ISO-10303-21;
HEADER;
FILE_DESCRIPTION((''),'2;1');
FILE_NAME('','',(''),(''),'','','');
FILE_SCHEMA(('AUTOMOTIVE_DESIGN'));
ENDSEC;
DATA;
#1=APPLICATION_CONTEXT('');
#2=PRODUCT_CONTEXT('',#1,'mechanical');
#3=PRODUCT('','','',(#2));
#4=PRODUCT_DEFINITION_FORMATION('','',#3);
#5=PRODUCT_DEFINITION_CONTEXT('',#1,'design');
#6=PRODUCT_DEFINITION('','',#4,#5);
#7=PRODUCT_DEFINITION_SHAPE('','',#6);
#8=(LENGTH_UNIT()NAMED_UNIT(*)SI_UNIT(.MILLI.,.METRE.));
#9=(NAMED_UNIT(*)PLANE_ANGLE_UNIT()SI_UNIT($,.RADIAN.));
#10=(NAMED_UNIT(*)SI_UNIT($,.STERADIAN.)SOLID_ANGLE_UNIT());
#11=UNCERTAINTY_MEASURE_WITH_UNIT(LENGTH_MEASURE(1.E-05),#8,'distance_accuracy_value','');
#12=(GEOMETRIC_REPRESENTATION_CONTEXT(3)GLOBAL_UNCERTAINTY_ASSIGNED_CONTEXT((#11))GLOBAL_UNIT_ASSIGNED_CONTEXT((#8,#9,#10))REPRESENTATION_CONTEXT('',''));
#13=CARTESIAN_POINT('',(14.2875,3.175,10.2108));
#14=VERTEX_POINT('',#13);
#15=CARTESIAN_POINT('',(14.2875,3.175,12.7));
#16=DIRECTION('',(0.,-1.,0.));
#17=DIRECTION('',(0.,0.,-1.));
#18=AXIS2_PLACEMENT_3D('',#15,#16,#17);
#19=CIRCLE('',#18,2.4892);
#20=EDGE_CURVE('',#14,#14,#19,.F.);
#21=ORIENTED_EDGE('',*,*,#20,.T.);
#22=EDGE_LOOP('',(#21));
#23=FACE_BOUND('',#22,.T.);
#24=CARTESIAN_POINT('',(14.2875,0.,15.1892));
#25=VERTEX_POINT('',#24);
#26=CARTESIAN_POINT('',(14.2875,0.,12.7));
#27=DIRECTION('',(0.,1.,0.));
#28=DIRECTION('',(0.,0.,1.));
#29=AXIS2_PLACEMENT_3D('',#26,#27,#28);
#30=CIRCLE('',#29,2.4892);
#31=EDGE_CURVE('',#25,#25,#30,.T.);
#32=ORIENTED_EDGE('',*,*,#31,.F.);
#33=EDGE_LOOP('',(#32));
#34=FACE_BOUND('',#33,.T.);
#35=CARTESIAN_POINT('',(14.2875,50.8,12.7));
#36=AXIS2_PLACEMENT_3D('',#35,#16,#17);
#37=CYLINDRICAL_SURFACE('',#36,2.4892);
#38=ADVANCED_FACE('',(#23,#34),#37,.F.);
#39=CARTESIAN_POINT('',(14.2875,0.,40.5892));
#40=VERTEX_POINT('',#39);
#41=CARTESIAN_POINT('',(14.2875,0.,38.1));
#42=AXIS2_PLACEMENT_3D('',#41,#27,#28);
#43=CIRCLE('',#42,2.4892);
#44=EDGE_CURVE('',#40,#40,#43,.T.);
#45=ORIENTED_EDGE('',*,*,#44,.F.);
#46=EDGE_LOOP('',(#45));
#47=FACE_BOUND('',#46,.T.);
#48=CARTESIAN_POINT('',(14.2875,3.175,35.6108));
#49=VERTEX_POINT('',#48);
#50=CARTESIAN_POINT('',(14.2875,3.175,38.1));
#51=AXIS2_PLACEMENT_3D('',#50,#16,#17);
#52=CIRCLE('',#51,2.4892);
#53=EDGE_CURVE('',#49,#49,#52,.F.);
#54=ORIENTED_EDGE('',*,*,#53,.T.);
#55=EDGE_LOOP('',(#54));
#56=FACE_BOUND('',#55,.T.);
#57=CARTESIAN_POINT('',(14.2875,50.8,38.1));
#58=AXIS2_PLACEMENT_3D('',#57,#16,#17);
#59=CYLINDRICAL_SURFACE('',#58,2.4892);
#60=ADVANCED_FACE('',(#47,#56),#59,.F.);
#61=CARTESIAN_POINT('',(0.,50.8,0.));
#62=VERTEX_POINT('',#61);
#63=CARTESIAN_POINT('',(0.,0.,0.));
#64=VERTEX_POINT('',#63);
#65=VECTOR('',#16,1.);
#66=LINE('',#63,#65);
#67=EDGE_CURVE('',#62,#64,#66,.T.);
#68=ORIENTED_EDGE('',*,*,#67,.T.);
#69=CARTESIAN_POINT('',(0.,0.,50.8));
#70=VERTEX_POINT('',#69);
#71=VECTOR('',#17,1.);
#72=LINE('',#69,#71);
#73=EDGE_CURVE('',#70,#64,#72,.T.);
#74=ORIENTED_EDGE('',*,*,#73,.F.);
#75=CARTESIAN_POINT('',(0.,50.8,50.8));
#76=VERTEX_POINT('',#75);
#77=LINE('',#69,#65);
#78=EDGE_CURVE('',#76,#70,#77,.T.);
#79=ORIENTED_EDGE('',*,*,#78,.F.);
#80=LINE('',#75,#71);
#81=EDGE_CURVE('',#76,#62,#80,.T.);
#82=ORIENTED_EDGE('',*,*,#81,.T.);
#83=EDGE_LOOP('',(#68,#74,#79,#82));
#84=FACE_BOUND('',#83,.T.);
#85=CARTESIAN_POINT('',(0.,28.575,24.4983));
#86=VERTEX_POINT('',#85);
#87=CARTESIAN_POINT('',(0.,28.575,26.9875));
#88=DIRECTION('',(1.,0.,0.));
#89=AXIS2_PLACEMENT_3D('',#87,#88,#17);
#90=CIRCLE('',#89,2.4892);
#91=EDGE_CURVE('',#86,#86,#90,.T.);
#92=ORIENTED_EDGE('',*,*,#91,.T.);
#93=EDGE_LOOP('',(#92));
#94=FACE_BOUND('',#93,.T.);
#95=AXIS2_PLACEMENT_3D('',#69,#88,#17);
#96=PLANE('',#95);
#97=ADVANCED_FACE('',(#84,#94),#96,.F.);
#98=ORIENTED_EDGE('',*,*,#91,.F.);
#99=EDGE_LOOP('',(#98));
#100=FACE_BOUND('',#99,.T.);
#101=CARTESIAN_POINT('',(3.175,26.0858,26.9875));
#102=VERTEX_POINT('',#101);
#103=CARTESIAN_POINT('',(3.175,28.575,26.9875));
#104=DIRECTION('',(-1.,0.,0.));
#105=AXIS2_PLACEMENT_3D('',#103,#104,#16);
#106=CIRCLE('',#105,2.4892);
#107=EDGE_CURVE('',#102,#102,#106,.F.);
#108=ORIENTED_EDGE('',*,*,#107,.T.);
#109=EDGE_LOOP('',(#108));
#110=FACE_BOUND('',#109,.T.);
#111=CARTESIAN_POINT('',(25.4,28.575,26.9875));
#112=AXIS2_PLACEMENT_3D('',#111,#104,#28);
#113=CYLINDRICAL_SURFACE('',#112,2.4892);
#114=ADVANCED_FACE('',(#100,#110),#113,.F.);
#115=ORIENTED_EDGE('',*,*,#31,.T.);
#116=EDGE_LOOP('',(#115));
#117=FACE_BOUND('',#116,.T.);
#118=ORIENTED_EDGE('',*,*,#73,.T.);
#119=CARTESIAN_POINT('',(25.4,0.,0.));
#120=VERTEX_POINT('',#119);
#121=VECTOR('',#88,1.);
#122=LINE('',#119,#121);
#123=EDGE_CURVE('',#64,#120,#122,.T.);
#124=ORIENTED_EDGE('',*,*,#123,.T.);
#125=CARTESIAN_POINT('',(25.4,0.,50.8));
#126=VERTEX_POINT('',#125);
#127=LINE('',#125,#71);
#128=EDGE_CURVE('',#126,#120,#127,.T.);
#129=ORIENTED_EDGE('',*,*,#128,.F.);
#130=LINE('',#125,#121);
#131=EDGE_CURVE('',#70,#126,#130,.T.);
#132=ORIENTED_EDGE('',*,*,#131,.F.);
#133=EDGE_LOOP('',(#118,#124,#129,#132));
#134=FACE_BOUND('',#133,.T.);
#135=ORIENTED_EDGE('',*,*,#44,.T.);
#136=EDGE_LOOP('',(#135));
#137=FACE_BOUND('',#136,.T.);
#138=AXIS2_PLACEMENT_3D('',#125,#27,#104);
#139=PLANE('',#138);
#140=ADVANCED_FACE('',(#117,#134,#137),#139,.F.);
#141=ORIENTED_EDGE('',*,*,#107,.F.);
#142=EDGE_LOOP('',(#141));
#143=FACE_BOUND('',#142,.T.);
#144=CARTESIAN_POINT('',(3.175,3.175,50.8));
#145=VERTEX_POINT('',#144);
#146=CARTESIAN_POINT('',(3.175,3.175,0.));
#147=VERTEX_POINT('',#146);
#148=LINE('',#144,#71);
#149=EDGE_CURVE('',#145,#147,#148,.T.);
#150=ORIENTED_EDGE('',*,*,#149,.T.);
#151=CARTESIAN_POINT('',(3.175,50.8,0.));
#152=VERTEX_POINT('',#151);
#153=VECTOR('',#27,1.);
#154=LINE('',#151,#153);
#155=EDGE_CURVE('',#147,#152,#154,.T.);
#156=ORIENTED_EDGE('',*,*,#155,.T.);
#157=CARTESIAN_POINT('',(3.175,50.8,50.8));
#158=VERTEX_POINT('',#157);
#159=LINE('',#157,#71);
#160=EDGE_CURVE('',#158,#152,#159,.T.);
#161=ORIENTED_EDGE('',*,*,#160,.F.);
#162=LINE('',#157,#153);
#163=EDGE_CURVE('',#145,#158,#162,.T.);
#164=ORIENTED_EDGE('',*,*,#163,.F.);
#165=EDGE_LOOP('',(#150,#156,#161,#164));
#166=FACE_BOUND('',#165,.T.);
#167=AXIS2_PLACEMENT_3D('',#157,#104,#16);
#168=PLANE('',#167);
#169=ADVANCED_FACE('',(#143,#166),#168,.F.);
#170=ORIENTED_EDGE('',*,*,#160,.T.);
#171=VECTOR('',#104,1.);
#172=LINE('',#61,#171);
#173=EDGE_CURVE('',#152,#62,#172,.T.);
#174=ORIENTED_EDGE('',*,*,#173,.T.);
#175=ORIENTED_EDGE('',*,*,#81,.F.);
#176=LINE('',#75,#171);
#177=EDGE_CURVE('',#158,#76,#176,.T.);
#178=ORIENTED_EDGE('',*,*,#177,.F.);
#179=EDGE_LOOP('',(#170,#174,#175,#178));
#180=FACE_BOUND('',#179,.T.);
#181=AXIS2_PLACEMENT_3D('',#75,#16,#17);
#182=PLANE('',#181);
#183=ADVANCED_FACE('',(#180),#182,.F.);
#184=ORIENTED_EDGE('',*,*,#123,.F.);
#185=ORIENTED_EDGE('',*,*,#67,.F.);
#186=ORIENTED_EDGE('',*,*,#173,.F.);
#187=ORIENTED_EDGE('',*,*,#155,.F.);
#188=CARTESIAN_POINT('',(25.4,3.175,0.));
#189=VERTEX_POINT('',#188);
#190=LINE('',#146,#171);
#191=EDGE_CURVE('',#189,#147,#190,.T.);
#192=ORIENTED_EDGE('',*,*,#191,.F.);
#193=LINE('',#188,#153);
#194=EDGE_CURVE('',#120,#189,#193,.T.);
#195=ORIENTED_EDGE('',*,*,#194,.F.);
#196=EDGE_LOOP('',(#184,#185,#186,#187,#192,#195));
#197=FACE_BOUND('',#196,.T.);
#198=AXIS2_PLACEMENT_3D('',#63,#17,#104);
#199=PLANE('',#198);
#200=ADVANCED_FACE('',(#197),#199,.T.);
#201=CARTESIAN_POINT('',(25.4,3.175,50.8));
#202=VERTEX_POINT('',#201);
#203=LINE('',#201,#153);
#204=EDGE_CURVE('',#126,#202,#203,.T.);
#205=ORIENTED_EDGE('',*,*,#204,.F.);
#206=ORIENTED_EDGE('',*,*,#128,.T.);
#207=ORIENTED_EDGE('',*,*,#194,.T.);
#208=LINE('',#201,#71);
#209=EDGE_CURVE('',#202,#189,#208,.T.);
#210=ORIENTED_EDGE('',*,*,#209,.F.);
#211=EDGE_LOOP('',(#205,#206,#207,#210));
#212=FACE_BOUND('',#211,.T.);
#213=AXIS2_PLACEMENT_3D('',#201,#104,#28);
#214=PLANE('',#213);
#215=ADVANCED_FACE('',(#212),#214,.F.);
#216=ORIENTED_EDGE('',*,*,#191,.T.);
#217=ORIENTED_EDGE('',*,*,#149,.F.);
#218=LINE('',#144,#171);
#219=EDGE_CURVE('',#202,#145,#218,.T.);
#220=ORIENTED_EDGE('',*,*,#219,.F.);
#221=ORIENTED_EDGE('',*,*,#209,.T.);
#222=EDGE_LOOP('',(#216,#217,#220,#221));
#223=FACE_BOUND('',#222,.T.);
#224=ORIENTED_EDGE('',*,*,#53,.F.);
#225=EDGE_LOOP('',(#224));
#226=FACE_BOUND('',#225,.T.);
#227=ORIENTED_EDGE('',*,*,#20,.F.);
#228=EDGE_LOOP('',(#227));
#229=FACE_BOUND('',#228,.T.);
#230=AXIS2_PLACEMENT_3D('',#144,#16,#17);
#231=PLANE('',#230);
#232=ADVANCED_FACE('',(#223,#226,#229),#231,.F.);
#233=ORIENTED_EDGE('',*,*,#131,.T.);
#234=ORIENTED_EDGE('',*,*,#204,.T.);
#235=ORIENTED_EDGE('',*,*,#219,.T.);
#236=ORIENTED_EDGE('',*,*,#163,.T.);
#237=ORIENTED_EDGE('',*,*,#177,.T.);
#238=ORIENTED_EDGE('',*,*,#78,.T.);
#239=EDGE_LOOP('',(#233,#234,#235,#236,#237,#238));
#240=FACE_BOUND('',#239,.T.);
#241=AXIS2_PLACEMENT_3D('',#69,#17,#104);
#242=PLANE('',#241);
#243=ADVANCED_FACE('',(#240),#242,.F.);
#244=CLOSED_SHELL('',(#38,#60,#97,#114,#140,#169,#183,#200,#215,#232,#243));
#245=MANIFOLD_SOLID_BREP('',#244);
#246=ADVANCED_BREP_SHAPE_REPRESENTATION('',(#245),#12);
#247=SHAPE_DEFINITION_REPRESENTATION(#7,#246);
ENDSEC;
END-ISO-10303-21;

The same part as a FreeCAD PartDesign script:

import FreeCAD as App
import Part
import Sketcher
Q = App.Units.Quantity

doc = App.newDocument("Part")
body = doc.addObject("PartDesign::Body", "Body")

# Sketch on XY plane
sketch1 = body.newObject("Sketcher::SketchObject", "Sketch")
sketch1.AttachmentSupport = (doc.getObject("XY_Plane"), [""])
sketch1.MapMode = "FlatFace"
sketch1.addGeometry(Part.LineSegment(App.Vector(0, 50.8, 0), App.Vector(0, 0, 0)), False)
sketch1.addGeometry(Part.LineSegment(App.Vector(0, 0, 0), App.Vector(25.4, 0, 0)), False)
sketch1.addGeometry(Part.LineSegment(App.Vector(25.4, 0, 0), App.Vector(25.4, 3.2, 0)), False)
sketch1.addGeometry(Part.LineSegment(App.Vector(25.4, 3.2, 0), App.Vector(3.2, 3.2, 0)), False)
sketch1.addGeometry(Part.LineSegment(App.Vector(3.2, 3.2, 0), App.Vector(3.2, 50.8, 0)), False)
sketch1.addGeometry(Part.LineSegment(App.Vector(3.2, 50.8, 0), App.Vector(0, 50.8, 0)), False)
sketch1.addConstraint(Sketcher.Constraint("Coincident", 0, 2, 1, 1))
sketch1.addConstraint(Sketcher.Constraint("Coincident", 1, 2, 2, 1))
sketch1.addConstraint(Sketcher.Constraint("Coincident", 2, 2, 3, 1))
sketch1.addConstraint(Sketcher.Constraint("Coincident", 3, 2, 4, 1))
sketch1.addConstraint(Sketcher.Constraint("Coincident", 4, 2, 5, 1))
sketch1.addConstraint(Sketcher.Constraint("Coincident", 5, 2, 0, 1))
sketch1.addConstraint(Sketcher.Constraint("Vertical", 0))
sketch1.addConstraint(Sketcher.Constraint("Horizontal", 1))
sketch1.addConstraint(Sketcher.Constraint("Vertical", 2))
sketch1.addConstraint(Sketcher.Constraint("Horizontal", 3))
sketch1.addConstraint(Sketcher.Constraint("Vertical", 4))
sketch1.addConstraint(Sketcher.Constraint("Horizontal", 5))
sketch1.addConstraint(Sketcher.Constraint("Coincident", 0, 2, -1, 1))
sketch1.addConstraint(Sketcher.Constraint("Equal", 5, 2))
sketch1.addConstraint(Sketcher.Constraint("DistanceX", 1, 1, 1, 2, Q("1 in")))
sketch1.addConstraint(Sketcher.Constraint("DistanceY", 0, 2, 0, 1, Q("2 in")))
sketch1.addConstraint(Sketcher.Constraint("DistanceX", 3, 2, 3, 1, Q("0.875 in")))
pad1 = body.newObject("PartDesign::Pad", "Pad")
pad1.Profile = sketch1
pad1.Length = Q("2 in")

# Sketch on YZ plane
sketch2 = body.newObject("Sketcher::SketchObject", "Sketch001")
sketch2.AttachmentSupport = (doc.getObject("YZ_Plane"), [""])
sketch2.MapMode = "FlatFace"
sketch2.addGeometry(Part.Circle(App.Vector(28.6, 27, 0), App.Vector(0, 0, 1), 2.5), False)
sketch2.addConstraint(Sketcher.Constraint("Diameter", 0, Q("0.196 in")))
sketch2.addConstraint(Sketcher.Constraint("DistanceX", -1, 1, 0, 3, Q("1.125 in")))
sketch2.addConstraint(Sketcher.Constraint("DistanceY", -1, 1, 0, 3, Q("1.0625 in")))
pocket1 = body.newObject("PartDesign::Pocket", "Pocket")
pocket1.Profile = sketch2
pocket1.Type = "ThroughAll"
pocket1.Reversed = True

# Sketch on XZ plane
sketch3 = body.newObject("Sketcher::SketchObject", "Sketch002")
sketch3.AttachmentSupport = (doc.getObject("XZ_Plane"), [""])
sketch3.MapMode = "FlatFace"
sketch3.addGeometry(Part.Circle(App.Vector(14.3, 38.1, 0), App.Vector(0, 0, 1), 2.5), False)
sketch3.addGeometry(Part.Circle(App.Vector(14.3, 12.7, 0), App.Vector(0, 0, 1), 2.5), False)
sketch3.addConstraint(Sketcher.Constraint("Equal", 0, 1))
sketch3.addConstraint(Sketcher.Constraint("Vertical", 0, 3, 1, 3))
sketch3.addConstraint(Sketcher.Constraint("Diameter", 0, Q("0.196 in")))
sketch3.addConstraint(Sketcher.Constraint("DistanceY", 1, 3, 0, 3, Q("1 in")))
sketch3.addConstraint(Sketcher.Constraint("DistanceY", -1, 1, 0, 3, Q("1.5 in")))
sketch3.addConstraint(Sketcher.Constraint("DistanceX", -1, 1, 0, 3, Q("0.5625 in")))
pocket2 = body.newObject("PartDesign::Pocket", "Pocket001")
pocket2.Profile = sketch3
pocket2.Type = "ThroughAll"

doc.recompute()
